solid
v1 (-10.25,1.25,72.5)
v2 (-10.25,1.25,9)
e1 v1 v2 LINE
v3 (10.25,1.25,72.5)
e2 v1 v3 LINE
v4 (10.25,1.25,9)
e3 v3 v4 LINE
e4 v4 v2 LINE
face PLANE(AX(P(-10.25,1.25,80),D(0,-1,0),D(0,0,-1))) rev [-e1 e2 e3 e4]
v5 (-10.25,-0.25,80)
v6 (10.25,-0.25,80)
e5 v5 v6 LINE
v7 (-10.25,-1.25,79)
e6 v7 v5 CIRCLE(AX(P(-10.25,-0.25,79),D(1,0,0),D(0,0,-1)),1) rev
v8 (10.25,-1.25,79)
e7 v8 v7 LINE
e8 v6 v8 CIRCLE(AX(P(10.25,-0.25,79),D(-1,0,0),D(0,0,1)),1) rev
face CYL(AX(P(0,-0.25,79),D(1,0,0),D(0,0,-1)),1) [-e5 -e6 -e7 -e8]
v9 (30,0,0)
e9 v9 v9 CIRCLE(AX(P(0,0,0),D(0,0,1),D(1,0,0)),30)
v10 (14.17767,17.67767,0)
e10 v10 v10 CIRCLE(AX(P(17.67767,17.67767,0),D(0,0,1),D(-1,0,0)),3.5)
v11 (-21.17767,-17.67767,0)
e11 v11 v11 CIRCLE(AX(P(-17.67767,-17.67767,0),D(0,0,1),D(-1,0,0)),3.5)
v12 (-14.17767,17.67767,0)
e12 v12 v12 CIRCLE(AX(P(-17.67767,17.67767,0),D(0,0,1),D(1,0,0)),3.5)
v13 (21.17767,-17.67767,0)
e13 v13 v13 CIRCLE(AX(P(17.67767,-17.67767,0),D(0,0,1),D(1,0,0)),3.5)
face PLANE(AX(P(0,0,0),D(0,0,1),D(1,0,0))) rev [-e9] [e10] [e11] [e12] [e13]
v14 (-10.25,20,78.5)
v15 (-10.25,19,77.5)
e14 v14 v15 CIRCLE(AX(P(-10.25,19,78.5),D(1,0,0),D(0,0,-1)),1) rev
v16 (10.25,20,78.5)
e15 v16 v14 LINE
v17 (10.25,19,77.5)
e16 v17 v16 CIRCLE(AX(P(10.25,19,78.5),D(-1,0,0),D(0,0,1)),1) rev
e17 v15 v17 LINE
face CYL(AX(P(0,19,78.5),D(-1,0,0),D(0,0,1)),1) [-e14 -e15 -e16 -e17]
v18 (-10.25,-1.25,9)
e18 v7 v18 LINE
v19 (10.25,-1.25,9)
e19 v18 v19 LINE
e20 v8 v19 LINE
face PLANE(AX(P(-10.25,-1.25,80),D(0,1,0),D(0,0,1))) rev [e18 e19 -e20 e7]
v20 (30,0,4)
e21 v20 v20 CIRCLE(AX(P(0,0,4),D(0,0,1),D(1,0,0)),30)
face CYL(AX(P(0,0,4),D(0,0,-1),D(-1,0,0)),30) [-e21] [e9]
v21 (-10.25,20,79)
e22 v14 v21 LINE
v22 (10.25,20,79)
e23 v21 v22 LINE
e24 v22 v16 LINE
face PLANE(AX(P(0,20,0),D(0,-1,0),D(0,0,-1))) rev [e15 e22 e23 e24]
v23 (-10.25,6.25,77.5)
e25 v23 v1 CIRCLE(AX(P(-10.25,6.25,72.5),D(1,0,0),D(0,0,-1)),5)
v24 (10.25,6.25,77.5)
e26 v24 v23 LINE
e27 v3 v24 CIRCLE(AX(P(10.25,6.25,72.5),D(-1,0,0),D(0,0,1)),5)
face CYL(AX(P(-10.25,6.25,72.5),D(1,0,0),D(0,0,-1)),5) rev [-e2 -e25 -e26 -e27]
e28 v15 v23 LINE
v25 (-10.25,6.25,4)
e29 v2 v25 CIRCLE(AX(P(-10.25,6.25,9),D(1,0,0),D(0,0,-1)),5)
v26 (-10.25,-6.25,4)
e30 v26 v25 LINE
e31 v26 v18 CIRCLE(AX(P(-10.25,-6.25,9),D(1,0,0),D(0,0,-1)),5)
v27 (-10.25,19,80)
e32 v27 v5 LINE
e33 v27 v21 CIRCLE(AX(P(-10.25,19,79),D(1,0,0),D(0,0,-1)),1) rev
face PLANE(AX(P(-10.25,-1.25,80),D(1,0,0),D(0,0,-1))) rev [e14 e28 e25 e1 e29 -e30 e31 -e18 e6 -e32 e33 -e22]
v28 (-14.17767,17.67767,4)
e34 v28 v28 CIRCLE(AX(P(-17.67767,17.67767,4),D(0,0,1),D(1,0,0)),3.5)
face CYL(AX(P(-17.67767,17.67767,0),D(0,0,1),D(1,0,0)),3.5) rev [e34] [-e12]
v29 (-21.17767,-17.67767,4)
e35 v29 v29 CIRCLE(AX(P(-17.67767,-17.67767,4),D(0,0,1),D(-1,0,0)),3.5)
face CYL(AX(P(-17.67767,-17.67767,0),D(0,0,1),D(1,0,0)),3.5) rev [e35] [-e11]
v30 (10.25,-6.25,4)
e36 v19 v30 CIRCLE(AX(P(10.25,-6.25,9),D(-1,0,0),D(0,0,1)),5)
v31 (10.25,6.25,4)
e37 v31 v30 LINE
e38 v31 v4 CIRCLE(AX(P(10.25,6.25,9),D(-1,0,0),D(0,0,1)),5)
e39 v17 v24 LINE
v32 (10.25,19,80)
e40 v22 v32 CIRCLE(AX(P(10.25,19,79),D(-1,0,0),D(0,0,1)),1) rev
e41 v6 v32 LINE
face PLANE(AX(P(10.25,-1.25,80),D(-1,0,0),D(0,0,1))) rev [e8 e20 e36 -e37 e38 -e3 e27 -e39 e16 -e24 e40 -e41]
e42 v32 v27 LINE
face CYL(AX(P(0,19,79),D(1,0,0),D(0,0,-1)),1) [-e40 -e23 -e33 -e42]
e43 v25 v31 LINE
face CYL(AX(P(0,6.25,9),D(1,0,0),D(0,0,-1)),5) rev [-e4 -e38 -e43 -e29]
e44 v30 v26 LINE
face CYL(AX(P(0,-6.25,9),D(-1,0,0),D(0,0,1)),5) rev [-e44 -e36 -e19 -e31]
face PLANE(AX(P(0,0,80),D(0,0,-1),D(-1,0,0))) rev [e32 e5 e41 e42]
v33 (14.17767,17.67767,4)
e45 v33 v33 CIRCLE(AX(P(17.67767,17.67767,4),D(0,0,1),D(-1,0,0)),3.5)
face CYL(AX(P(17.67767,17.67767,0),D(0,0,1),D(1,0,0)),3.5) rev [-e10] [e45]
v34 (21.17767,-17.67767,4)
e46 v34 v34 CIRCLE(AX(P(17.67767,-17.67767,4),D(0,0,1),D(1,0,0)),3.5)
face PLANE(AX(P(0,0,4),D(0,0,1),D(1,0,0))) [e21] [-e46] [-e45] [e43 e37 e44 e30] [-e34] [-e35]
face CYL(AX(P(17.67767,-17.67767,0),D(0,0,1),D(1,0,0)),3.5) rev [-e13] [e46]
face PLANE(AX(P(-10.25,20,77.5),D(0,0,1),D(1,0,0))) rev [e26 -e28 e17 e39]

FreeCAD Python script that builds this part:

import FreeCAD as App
import Part
import Sketcher


def edges_at(feature, points):
    """Names of the edges that pass closest to the given points."""
    edges = feature.Shape.Edges
    near = lambda p: min(range(len(edges)), key=lambda i: edges[i].distToShape(Part.Vertex(*p))[0])
    return sorted({f"Edge{near(p) + 1}" for p in points})

doc = App.newDocument("Part")
body = doc.addObject("PartDesign::Body", "Body")

# Sketch on XY plane
sketch1 = doc.addObject("Sketcher::SketchObject", "Sketch")
body.addObject(sketch1)
sketch1.AttachmentSupport = (doc.XY_Plane, [""])
sketch1.MapMode = "FlatFace"
sketch1.addGeometry(Part.Circle(App.Vector(0, 0, 0), App.Vector(0, 0, 1), 30), False)
sketch1.addConstraint(Sketcher.Constraint("Coincident", 0, 3, -1, 1))
sketch1.addConstraint(Sketcher.Constraint("Diameter", 0, 60.0))
pad1 = doc.addObject("PartDesign::Pad", "Pad")
body.addObject(pad1)
pad1.Profile = sketch1
pad1.Length = 4

# Sketch on XY plane
sketch2 = doc.addObject("Sketcher::SketchObject", "Sketch001")
body.addObject(sketch2)
sketch2.AttachmentSupport = (doc.XY_Plane, [""])
sketch2.MapMode = "FlatFace"
sketch2.AttachmentOffset = App.Placement(App.Vector(0, 0, 4), App.Rotation())
sketch2.addGeometry(Part.Circle(App.Vector(-17.67767, 17.67767, 0), App.Vector(0, 0, 1), 3.5), False)
sketch2.addGeometry(Part.Circle(App.Vector(17.67767, 17.67767, 0), App.Vector(0, 0, 1), 3.5), False)
sketch2.addGeometry(Part.Circle(App.Vector(17.67767, -17.67767, 0), App.Vector(0, 0, 1), 3.5), False)
sketch2.addGeometry(Part.Circle(App.Vector(-17.67767, -17.67767, 0), App.Vector(0, 0, 1), 3.5), False)
sketch2.addConstraint(Sketcher.Constraint("Equal", 0, 1))
sketch2.addConstraint(Sketcher.Constraint("Equal", 1, 2))
sketch2.addConstraint(Sketcher.Constraint("Equal", 2, 3))
sketch2.addConstraint(Sketcher.Constraint("Symmetric", 0, 3, 2, 3, -1, 1))
sketch2.addConstraint(Sketcher.Constraint("Symmetric", 1, 3, 3, 3, -1, 1))
sketch2.addConstraint(Sketcher.Constraint("Symmetric", 0, 3, 1, 3, -2))
sketch2.addConstraint(Sketcher.Constraint("Diameter", 0, 7.0))
sketch2.addConstraint(Sketcher.Constraint("DistanceX", 0, 3, -1, 1, 17.67767))
sketch2.addConstraint(Sketcher.Constraint("DistanceY", -1, 1, 0, 3, 17.67767))
pocket1 = doc.addObject("PartDesign::Pocket", "Pocket")
body.addObject(pocket1)
pocket1.Profile = sketch2
pocket1.Length = 4

# Sketch on XY plane
sketch3 = doc.addObject("Sketcher::SketchObject", "Sketch002")
body.addObject(sketch3)
sketch3.AttachmentSupport = (doc.XY_Plane, [""])
sketch3.MapMode = "FlatFace"
sketch3.addGeometry(Part.LineSegment(App.Vector(-10.25, 1.25, 0), App.Vector(-10.25, -1.25, 0)), False)
sketch3.addGeometry(Part.LineSegment(App.Vector(-10.25, -1.25, 0), App.Vector(10.25, -1.25, 0)), False)
sketch3.addGeometry(Part.LineSegment(App.Vector(10.25, -1.25, 0), App.Vector(10.25, 1.25, 0)), False)
sketch3.addGeometry(Part.LineSegment(App.Vector(10.25, 1.25, 0), App.Vector(-10.25, 1.25, 0)), False)
sketch3.addConstraint(Sketcher.Constraint("Coincident", 0, 2, 1, 1))
sketch3.addConstraint(Sketcher.Constraint("Coincident", 1, 2, 2, 1))
sketch3.addConstraint(Sketcher.Constraint("Coincident", 2, 2, 3, 1))
sketch3.addConstraint(Sketcher.Constraint("Coincident", 3, 2, 0, 1))
sketch3.addConstraint(Sketcher.Constraint("Vertical", 0))
sketch3.addConstraint(Sketcher.Constraint("Horizontal", 1))
sketch3.addConstraint(Sketcher.Constraint("Vertical", 2))
sketch3.addConstraint(Sketcher.Constraint("Horizontal", 3))
sketch3.addConstraint(Sketcher.Constraint("Symmetric", 0, 2, 2, 2, -1, 1))
sketch3.addConstraint(Sketcher.Constraint("DistanceX", 1, 1, 1, 2, 20.5))
sketch3.addConstraint(Sketcher.Constraint("DistanceY", 0, 2, 0, 1, 2.5))
pad2 = doc.addObject("PartDesign::Pad", "Pad001")
body.addObject(pad2)
pad2.Profile = sketch3
pad2.Length = 80

# Sketch on XZ plane
sketch4 = doc.addObject("Sketcher::SketchObject", "Sketch003")
body.addObject(sketch4)
sketch4.AttachmentSupport = (doc.XZ_Plane, [""])
sketch4.MapMode = "FlatFace"
sketch4.addGeometry(Part.LineSegment(App.Vector(-10.25, 77.5, 0), App.Vector(-10.25, 80, 0)), False)
sketch4.addGeometry(Part.LineSegment(App.Vector(-10.25, 80, 0), App.Vector(10.25, 80, 0)), False)
sketch4.addGeometry(Part.LineSegment(App.Vector(10.25, 80, 0), App.Vector(10.25, 77.5, 0)), False)
sketch4.addGeometry(Part.LineSegment(App.Vector(10.25, 77.5, 0), App.Vector(-10.25, 77.5, 0)), False)
sketch4.addConstraint(Sketcher.Constraint("Coincident", 0, 2, 1, 1))
sketch4.addConstraint(Sketcher.Constraint("Coincident", 1, 2, 2, 1))
sketch4.addConstraint(Sketcher.Constraint("Coincident", 2, 2, 3, 1))
sketch4.addConstraint(Sketcher.Constraint("Coincident", 3, 2, 0, 1))
sketch4.addConstraint(Sketcher.Constraint("Vertical", 0))
sketch4.addConstraint(Sketcher.Constraint("Horizontal", 1))
sketch4.addConstraint(Sketcher.Constraint("Vertical", 2))
sketch4.addConstraint(Sketcher.Constraint("Horizontal", 3))
sketch4.addConstraint(Sketcher.Constraint("DistanceX", 1, 1, 1, 2, 20.5))
sketch4.addConstraint(Sketcher.Constraint("DistanceY", 0, 1, 0, 2, 2.5))
sketch4.addConstraint(Sketcher.Constraint("DistanceY", -1, 1, 0, 2, 80.0))
sketch4.addConstraint(Sketcher.Constraint("DistanceX", 0, 2, -1, 1, 10.25))
pad3 = doc.addObject("PartDesign::Pad", "Pad002")
body.addObject(pad3)
pad3.Profile = sketch4
pad3.Length = 20
pad3.Reversed = True
doc.recompute()

fillet = doc.addObject("PartDesign::Fillet", "Fillet")
body.addObject(fillet)
fillet.Base = (pad3, edges_at(pad3, [(0, 1.25, 4), (0, -1.25, 4), (0, 1.25, 77.5)]))
fillet.Radius = 5
doc.recompute()

fillet2 = doc.addObject("PartDesign::Fillet", "Fillet001")
body.addObject(fillet2)
fillet2.Base = (fillet, edges_at(fillet, [(0, -1.25, 80), (0, 20, 80), (0, 20, 77.5)]))
fillet2.Radius = 1

doc.recompute()
